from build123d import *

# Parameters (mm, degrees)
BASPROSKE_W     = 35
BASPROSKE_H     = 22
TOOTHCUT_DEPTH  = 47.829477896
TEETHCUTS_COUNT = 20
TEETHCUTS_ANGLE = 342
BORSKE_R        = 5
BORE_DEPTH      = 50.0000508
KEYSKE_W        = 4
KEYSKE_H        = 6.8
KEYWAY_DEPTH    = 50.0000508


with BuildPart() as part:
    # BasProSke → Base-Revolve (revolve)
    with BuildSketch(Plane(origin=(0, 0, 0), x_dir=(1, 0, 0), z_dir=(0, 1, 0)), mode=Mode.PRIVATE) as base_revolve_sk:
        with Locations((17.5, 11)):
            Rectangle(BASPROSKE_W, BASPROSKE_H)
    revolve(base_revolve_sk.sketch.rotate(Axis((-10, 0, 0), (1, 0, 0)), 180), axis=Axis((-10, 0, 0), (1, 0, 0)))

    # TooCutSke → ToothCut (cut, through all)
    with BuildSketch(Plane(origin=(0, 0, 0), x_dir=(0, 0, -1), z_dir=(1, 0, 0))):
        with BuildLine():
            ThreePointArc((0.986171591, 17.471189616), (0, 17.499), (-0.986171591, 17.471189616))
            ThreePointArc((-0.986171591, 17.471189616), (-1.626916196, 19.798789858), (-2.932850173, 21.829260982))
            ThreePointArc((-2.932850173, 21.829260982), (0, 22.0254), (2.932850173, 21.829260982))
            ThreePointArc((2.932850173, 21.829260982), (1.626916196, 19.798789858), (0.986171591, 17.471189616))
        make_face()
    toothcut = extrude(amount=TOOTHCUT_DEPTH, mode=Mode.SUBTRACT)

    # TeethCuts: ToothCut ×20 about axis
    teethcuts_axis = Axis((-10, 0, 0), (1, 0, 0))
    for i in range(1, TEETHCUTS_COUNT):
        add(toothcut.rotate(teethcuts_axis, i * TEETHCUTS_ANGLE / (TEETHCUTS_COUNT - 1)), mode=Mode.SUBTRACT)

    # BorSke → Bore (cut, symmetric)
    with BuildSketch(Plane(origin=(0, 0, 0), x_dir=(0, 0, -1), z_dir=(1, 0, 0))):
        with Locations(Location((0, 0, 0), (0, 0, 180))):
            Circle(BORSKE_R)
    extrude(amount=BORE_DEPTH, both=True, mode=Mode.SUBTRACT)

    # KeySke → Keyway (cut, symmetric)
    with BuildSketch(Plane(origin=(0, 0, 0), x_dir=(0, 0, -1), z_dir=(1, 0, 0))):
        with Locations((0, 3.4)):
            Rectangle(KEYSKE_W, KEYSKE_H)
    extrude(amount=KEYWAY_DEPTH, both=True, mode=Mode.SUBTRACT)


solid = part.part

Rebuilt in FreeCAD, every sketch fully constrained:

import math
import FreeCAD as App
import Part
import Sketcher
Q = App.Units.Quantity


def add_polygon(sketch, points):
    """Adds a closed chain of lines whose ends are joined by coincident constraints."""
    first, n = sketch.GeometryCount, len(points)
    for a, b in zip(points, points[1:] + points[:1]):
        sketch.addGeometry(Part.LineSegment(App.Vector(*a, 0), App.Vector(*b, 0)), False)
    for i in range(n):
        sketch.addConstraint(Sketcher.Constraint("Coincident", first + i, 2, first + (i + 1) % n, 1))

doc = App.newDocument("Part")
body = doc.addObject("PartDesign::Body", "Body")

# Sketch on XZ plane
sketch1 = body.newObject("Sketcher::SketchObject", "Sketch")
sketch1.AttachmentSupport = (doc.getObject("XZ_Plane"), [""])
sketch1.MapMode = "FlatFace"
add_polygon(sketch1, [(0, -22), (0, 0), (35, 0), (35, -22)])  # lines 0-3
sketch1.addConstraint([
    Sketcher.Constraint("Vertical", 0),
    Sketcher.Constraint("Horizontal", 1),
    Sketcher.Constraint("Vertical", 2),
    Sketcher.Constraint("Horizontal", 3),
    Sketcher.Constraint("Coincident", 0, 2, -1, 1),
    Sketcher.Constraint("DistanceX", 1, 1, 1, 2, Q("35 mm")),
    Sketcher.Constraint("DistanceY", 0, 1, 0, 2, Q("22 mm")),
])
revolution = body.newObject("PartDesign::Revolution", "Revolution")
revolution.Profile = sketch1
revolution.ReferenceAxis = (sketch1, ["H_Axis"])
revolution.Angle = 360

# Sketch on YZ plane
sketch2 = body.newObject("Sketcher::SketchObject", "Sketch001")
sketch2.AttachmentSupport = (doc.getObject("YZ_Plane"), [""])
sketch2.MapMode = "FlatFace"
sketch2.addGeometry([
    Part.ArcOfCircle(Part.Circle(App.Vector(0, 0, 0), App.Vector(0, 0, 1), 17.499), math.radians(-3.230666), math.radians(3.230666)),
    Part.ArcOfCircle(Part.Circle(App.Vector(16.536031, -8.931326, 0), App.Vector(0, 0, 1), 8), math.radians(48.573876), math.radians(83.287069)),
    Part.ArcOfCircle(Part.Circle(App.Vector(0, 0, 0), App.Vector(0, 0, 1), 22.0254), math.radians(-7.652098), math.radians(7.652098)),
    Part.ArcOfCircle(Part.Circle(App.Vector(16.536031, 8.931326, 0), App.Vector(0, 0, 1), 8), math.radians(-83.287069), math.radians(-48.573876)),
], False)
sketch2.addConstraint([
    Sketcher.Constraint("Coincident", 0, 1, 1, 2),
    Sketcher.Constraint("Coincident", 1, 1, 2, 1),
    Sketcher.Constraint("Coincident", 2, 2, 3, 2),
    Sketcher.Constraint("Coincident", 3, 1, 0, 2),
    Sketcher.Constraint("Coincident", 0, 3, -1, 1),
    Sketcher.Constraint("Coincident", 2, 3, -1, 1),
    Sketcher.Constraint("Equal", 1, 3),
    Sketcher.Constraint("Symmetric", 1, 3, 3, 3, -1),
    Sketcher.Constraint("Radius", 1, Q("8 mm")),
    Sketcher.Constraint("Radius", 0, Q("17.499 mm")),
    Sketcher.Constraint("Radius", 2, Q("22.0254 mm")),
    Sketcher.Constraint("DistanceY", 1, 1, 2, 2, Q("5.8657 mm")),
    Sketcher.Constraint("DistanceX", -1, 1, 1, 3, Q("16.536031 mm")),
])
pocket1 = body.newObject("PartDesign::Pocket", "Pocket")
pocket1.Profile = sketch2
pocket1.Type = "ThroughAll"
pocket1.Reversed = True
doc.recompute()

polarpattern = body.newObject("PartDesign::PolarPattern", "PolarPattern")
polarpattern.Originals = [pocket1]
polarpattern.Axis = (doc.getObject("X_Axis"), [""])
polarpattern.Angle = 360
polarpattern.Occurrences = 20
body.Tip = polarpattern

# Sketch on YZ plane
sketch3 = body.newObject("Sketcher::SketchObject", "Sketch002")
sketch3.AttachmentSupport = (doc.getObject("YZ_Plane"), [""])
sketch3.MapMode = "FlatFace"
sketch3.addGeometry(Part.Circle(App.Vector(0, 0, 0), App.Vector(0, 0, 1), 5), False)
sketch3.addConstraint([
    Sketcher.Constraint("Coincident", 0, 3, -1, 1),
    Sketcher.Constraint("Diameter", 0, Q("10 mm")),
])
pocket2 = body.newObject("PartDesign::Pocket", "Pocket001")
pocket2.Profile = sketch3
pocket2.Length = 100.000102
pocket2.Midplane = True

# Sketch on YZ plane
sketch4 = body.newObject("Sketcher::SketchObject", "Sketch003")
sketch4.AttachmentSupport = (doc.getObject("YZ_Plane"), [""])
sketch4.MapMode = "FlatFace"
add_polygon(sketch4, [(6.8, 2), (0, 2), (0, -2), (6.8, -2)])  # lines 0-3
sketch4.addConstraint([
    Sketcher.Constraint("Horizontal", 0),
    Sketcher.Constraint("Vertical", 1),
    Sketcher.Constraint("Horizontal", 2),
    Sketcher.Constraint("Vertical", 3),
    Sketcher.Constraint("Symmetric", 0, 2, 1, 2, -1, 1),
    Sketcher.Constraint("DistanceY", 1, 2, 1, 1, Q("4 mm")),
    Sketcher.Constraint("DistanceX", 0, 2, 0, 1, Q("6.8 mm")),
])
pocket3 = body.newObject("PartDesign::Pocket", "Pocket002")
pocket3.Profile = sketch4
pocket3.Length = 100.000102
pocket3.Midplane = True

doc.recompute()
